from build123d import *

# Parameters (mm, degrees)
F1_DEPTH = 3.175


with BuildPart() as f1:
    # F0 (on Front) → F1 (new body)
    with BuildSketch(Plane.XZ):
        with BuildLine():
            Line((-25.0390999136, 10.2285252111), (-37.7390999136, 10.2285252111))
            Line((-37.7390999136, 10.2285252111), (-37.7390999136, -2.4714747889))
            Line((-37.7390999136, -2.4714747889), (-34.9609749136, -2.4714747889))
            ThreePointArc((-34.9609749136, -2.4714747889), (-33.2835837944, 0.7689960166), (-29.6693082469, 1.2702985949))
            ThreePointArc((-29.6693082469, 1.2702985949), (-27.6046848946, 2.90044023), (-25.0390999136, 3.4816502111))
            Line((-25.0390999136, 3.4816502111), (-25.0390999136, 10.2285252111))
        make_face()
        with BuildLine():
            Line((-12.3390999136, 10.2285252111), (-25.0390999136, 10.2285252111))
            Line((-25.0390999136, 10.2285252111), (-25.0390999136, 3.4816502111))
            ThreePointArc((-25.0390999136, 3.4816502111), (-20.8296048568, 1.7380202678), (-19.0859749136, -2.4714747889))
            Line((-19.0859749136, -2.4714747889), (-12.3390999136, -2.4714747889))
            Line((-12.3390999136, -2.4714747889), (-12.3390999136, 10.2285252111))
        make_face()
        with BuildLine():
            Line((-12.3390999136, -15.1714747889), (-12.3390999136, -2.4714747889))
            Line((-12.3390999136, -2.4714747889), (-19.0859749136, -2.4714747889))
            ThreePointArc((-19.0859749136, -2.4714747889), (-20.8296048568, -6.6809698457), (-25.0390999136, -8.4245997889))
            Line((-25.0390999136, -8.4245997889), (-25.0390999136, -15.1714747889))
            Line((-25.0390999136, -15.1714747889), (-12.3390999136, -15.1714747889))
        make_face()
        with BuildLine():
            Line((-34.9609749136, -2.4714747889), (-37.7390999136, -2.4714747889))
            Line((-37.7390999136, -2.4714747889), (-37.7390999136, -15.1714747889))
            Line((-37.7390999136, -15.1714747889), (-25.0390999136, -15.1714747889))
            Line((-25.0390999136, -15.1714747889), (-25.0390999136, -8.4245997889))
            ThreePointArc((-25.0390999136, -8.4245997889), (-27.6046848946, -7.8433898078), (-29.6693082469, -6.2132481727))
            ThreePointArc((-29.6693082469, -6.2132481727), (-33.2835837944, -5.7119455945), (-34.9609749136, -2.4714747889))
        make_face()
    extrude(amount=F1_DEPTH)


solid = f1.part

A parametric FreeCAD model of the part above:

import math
import FreeCAD as App
import Part
import Sketcher
Q = App.Units.Quantity

doc = App.newDocument("Part")
body = doc.addObject("PartDesign::Body", "Body")

# Sketch on XZ plane
sketch1 = doc.addObject("Sketcher::SketchObject", "Sketch")
body.addObject(sketch1)
sketch1.AttachmentSupport = (doc.XZ_Plane, [""])
sketch1.MapMode = "FlatFace"
sketch1.addGeometry(Part.LineSegment(App.Vector(-37.7, 10.2, 0), App.Vector(-37.7, -15.2, 0)), False)
sketch1.addGeometry(Part.LineSegment(App.Vector(-37.7, -15.2, 0), App.Vector(-12.3, -15.2, 0)), False)
sketch1.addGeometry(Part.LineSegment(App.Vector(-12.3, -15.2, 0), App.Vector(-12.3, 10.2, 0)), False)
sketch1.addGeometry(Part.LineSegment(App.Vector(-12.3, 10.2, 0), App.Vector(-37.7, 10.2, 0)), False)
sketch1.addGeometry(Part.ArcOfCircle(Part.Circle(App.Vector(-31, -2.5, 0), App.Vector(0, 0, 1), 4), math.radians(71), math.radians(180)), False)
sketch1.addGeometry(Part.ArcOfCircle(Part.Circle(App.Vector(-25, -2.5, 0), App.Vector(0, 0, 1), 6), math.radians(90), math.radians(141)), False)
sketch1.addGeometry(Part.ArcOfCircle(Part.Circle(App.Vector(-25, -2.5, 0), App.Vector(0, 0, 1), 6), math.radians(0), math.radians(90)), False)
sketch1.addGeometry(Part.ArcOfCircle(Part.Circle(App.Vector(-25, -2.5, 0), App.Vector(0, 0, 1), 6), math.radians(-90), math.radians(0)), False)
sketch1.addGeometry(Part.ArcOfCircle(Part.Circle(App.Vector(-25, -2.5, 0), App.Vector(0, 0, 1), 6), math.radians(-141), math.radians(-90)), False)
sketch1.addGeometry(Part.ArcOfCircle(Part.Circle(App.Vector(-31, -2.5, 0), App.Vector(0, 0, 1), 4), math.radians(180), math.radians(289)), False)
sketch1.addConstraint(Sketcher.Constraint("Coincident", 0, 2, 1, 1))
sketch1.addConstraint(Sketcher.Constraint("Coincident", 1, 2, 2, 1))
sketch1.addConstraint(Sketcher.Constraint("Coincident", 2, 2, 3, 1))
sketch1.addConstraint(Sketcher.Constraint("Coincident", 3, 2, 0, 1))
sketch1.addConstraint(Sketcher.Constraint("Coincident", 4, 1, 5, 2))
sketch1.addConstraint(Sketcher.Constraint("Tangent", 5, 1, 6, 2))
sketch1.addConstraint(Sketcher.Constraint("Tangent", 6, 1, 7, 2))
sketch1.addConstraint(Sketcher.Constraint("Tangent", 7, 1, 8, 2))
sketch1.addConstraint(Sketcher.Constraint("Coincident", 8, 1, 9, 2))
sketch1.addConstraint(Sketcher.Constraint("Tangent", 9, 1, 4, 2))
sketch1.addConstraint(Sketcher.Constraint("Vertical", 0))
sketch1.addConstraint(Sketcher.Constraint("Horizontal", 1))
sketch1.addConstraint(Sketcher.Constraint("Vertical", 2))
sketch1.addConstraint(Sketcher.Constraint("Horizontal", 3))
sketch1.addConstraint(Sketcher.Constraint("Coincident", 7, 3, 5, 3))
sketch1.addConstraint(Sketcher.Constraint("Equal", 7, 8))
sketch1.addConstraint(Sketcher.Constraint("Equal", 4, 9))
sketch1.addConstraint(Sketcher.Constraint("Horizontal", 4, 3, 5, 3))
sketch1.addConstraint(Sketcher.Constraint("Horizontal", 9, 3, 6, 1))
sketch1.addConstraint(Sketcher.Constraint("Horizontal", 6, 1, 9, 1))
sketch1.addConstraint(Sketcher.Constraint("Vertical", 8, 3, 5, 1))
sketch1.addConstraint(Sketcher.Constraint("Vertical", 5, 1, 7, 1))
sketch1.addConstraint(Sketcher.Constraint("Equal", 3, 0))
sketch1.addConstraint(Sketcher.Constraint("DistanceX", 1, 1, 1, 2, Q("1 in")))
sketch1.addConstraint(Sketcher.Constraint("Radius", 4, Q("0.15625 in")))
sketch1.addConstraint(Sketcher.Constraint("Radius", 5, Q("0.234375 in")))
sketch1.addConstraint(Sketcher.Constraint("DistanceY", 0, 2, 9, 3, Q("0.5 in")))
sketch1.addConstraint(Sketcher.Constraint("DistanceX", 0, 2, 6, 3, Q("0.5 in")))
sketch1.addConstraint(Sketcher.Constraint("DistanceX", 4, 3, 5, 3, Q("0.234375 in")))
sketch1.addConstraint(Sketcher.Constraint("DistanceX", 5, 3, -1, 1, 25.0391))
sketch1.addConstraint(Sketcher.Constraint("DistanceY", -1, 1, 4, 1, 1.270299))
pad1 = doc.addObject("PartDesign::Pad", "Pad")
body.addObject(pad1)
pad1.Profile = sketch1
pad1.Length = Q("0.125 in")

doc.recompute()
